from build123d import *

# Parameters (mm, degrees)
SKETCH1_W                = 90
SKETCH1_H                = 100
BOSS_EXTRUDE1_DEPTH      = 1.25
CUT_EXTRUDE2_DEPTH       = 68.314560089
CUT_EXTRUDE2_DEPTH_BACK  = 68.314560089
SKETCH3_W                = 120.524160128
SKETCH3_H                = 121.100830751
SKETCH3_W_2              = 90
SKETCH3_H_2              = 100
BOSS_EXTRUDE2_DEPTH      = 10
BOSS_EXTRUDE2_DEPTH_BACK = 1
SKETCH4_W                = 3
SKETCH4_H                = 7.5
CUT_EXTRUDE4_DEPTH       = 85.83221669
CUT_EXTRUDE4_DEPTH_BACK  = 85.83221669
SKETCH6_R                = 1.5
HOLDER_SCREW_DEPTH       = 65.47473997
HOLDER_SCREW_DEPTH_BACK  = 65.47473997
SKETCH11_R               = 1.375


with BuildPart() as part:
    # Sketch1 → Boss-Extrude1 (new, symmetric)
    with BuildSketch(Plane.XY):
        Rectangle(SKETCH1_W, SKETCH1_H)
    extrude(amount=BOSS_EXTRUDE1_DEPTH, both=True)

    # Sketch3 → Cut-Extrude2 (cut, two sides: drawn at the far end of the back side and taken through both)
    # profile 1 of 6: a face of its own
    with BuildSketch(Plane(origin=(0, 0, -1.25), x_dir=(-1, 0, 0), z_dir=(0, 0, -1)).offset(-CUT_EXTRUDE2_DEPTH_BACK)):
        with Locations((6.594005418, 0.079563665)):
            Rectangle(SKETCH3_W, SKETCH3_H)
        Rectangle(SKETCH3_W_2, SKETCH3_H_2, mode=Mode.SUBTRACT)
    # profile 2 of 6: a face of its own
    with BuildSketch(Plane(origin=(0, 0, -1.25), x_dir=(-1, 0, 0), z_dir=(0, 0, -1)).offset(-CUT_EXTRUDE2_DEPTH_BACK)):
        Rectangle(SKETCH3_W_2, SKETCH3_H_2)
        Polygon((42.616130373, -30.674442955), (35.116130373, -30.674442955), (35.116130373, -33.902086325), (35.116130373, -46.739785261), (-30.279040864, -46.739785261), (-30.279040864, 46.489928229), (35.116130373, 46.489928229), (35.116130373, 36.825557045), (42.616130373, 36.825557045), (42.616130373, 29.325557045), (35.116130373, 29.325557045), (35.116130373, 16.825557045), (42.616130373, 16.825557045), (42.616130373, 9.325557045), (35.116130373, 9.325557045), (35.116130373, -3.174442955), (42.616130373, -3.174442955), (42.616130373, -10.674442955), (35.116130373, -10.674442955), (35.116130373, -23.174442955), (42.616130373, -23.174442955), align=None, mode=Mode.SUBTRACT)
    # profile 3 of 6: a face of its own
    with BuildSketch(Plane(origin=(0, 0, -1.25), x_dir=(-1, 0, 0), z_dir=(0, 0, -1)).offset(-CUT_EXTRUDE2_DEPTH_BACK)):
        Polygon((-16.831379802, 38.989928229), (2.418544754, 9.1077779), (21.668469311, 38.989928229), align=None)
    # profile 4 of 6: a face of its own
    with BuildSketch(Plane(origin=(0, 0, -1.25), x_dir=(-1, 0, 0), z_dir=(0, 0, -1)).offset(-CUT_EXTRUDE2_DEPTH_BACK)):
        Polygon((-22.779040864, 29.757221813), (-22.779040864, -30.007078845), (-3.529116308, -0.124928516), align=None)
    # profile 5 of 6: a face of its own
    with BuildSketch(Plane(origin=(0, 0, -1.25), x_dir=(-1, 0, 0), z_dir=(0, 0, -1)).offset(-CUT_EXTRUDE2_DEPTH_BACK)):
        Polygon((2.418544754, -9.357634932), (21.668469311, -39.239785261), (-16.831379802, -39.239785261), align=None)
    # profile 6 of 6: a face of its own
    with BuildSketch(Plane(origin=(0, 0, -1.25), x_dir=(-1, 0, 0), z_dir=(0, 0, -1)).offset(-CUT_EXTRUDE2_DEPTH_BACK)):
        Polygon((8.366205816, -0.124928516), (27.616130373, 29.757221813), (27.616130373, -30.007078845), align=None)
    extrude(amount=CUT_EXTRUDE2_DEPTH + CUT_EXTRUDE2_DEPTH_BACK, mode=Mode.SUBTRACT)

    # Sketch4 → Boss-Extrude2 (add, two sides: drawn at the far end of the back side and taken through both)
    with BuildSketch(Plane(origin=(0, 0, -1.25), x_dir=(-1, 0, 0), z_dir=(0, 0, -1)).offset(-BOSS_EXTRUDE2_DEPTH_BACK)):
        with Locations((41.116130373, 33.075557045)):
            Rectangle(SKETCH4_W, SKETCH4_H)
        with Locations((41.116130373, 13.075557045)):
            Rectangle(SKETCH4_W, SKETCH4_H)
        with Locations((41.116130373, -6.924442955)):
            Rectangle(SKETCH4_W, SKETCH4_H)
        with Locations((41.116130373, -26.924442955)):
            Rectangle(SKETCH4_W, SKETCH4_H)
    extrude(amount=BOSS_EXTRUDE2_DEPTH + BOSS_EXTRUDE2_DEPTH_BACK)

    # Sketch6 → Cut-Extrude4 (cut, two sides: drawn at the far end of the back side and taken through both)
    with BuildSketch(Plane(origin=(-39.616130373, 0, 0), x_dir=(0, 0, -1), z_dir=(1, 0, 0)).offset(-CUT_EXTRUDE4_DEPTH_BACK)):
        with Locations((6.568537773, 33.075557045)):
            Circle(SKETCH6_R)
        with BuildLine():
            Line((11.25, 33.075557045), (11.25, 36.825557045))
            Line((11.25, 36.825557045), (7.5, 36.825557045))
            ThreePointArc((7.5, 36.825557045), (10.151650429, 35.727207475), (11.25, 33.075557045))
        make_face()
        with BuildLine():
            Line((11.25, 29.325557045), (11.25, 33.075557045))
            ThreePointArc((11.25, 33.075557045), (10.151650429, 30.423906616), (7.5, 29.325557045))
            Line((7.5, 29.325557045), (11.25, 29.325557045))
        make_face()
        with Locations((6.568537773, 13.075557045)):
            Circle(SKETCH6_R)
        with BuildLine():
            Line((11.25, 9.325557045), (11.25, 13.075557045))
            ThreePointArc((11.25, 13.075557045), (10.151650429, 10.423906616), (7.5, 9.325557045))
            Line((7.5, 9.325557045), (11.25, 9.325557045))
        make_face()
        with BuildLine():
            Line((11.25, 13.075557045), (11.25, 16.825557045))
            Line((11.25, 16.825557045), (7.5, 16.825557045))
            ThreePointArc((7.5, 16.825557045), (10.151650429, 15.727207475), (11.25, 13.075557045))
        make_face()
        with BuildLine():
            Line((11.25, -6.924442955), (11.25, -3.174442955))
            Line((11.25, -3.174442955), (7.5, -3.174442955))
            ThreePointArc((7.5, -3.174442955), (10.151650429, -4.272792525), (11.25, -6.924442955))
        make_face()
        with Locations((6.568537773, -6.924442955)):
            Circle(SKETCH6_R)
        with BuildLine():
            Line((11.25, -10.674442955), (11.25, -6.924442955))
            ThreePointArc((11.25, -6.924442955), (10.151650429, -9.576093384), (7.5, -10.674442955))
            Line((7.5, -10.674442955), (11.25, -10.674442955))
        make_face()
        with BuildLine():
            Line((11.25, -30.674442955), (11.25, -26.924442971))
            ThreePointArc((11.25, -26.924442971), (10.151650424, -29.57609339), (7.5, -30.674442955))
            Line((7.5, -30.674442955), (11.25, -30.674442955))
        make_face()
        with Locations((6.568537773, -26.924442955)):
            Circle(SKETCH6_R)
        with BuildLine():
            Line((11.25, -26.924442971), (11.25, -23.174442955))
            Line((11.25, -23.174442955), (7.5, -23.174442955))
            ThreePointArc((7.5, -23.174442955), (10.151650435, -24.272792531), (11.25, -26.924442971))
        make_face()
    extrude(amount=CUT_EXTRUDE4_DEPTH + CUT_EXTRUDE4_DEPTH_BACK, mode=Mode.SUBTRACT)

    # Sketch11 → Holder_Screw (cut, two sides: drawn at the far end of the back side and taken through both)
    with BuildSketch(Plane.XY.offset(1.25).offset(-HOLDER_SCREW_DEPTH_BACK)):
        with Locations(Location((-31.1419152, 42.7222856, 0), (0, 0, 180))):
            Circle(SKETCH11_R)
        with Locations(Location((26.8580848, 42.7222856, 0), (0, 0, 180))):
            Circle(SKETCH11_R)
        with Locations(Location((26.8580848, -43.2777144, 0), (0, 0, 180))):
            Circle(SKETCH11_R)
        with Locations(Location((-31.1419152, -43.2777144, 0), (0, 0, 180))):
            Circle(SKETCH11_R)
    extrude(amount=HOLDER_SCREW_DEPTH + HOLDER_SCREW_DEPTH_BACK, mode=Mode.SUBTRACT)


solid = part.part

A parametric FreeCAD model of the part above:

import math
import FreeCAD as App
import Part
import Sketcher


def add_polygon(sketch, points):
    """Adds a closed chain of lines whose ends are joined by coincident constraints."""
    first, n = sketch.GeometryCount, len(points)
    for a, b in zip(points, points[1:] + points[:1]):
        sketch.addGeometry(Part.LineSegment(App.Vector(*a, 0), App.Vector(*b, 0)), False)
    for i in range(n):
        sketch.addConstraint(Sketcher.Constraint("Coincident", first + i, 2, first + (i + 1) % n, 1))

doc = App.newDocument("Part")
body = doc.addObject("PartDesign::Body", "Body")

# Sketch on XY plane
sketch1 = body.newObject("Sketcher::SketchObject", "Sketch")
sketch1.AttachmentSupport = (doc.getObject("XY_Plane"), [""])
sketch1.MapMode = "FlatFace"
add_polygon(sketch1, [(-45, 50), (-45, -50), (45, -50), (45, 50)])  # lines 0-3
sketch1.addConstraint([
    Sketcher.Constraint("Vertical", 0),
    Sketcher.Constraint("Horizontal", 1),
    Sketcher.Constraint("Vertical", 2),
    Sketcher.Constraint("Horizontal", 3),
    Sketcher.Constraint("Symmetric", 0, 2, 2, 2, -1, 1),
    Sketcher.Constraint("DistanceX", 1, 1, 1, 2, 90.0),
    Sketcher.Constraint("DistanceY", 0, 2, 0, 1, 100.0),
])
pad1 = body.newObject("PartDesign::Pad", "Pad")
pad1.Profile = sketch1
pad1.Length = 2.5
pad1.Midplane = True

# Sketch on XY plane
sketch2 = body.newObject("Sketcher::SketchObject", "Sketch001")
sketch2.AttachmentSupport = (doc.getObject("XY_Plane"), [""])
sketch2.MapMode = "FlatFace"
sketch2.AttachmentOffset = App.Placement(App.Vector(0, 0, -1.25), App.Rotation())
add_polygon(sketch2, [(53.668075, 60.629979), (53.668075, -60.470852), (-66.856085, -60.470852), (-66.856085, 60.629979)])  # lines 0-3
add_polygon(sketch2, [(-42.61613, -3.174443), (-42.61613, -10.674443), (-35.11613, -10.674443), (-35.11613, -23.174443), (-42.61613, -23.174443), (-42.61613, -30.674443), (-35.11613, -30.674443), (-35.11613, -46.739785), (30.279041, -46.739785), (30.279041, 46.489928), (-35.11613, 46.489928), (-35.11613, 36.825557), (-42.61613, 36.825557), (-42.61613, 29.325557), (-35.11613, 29.325557), (-35.11613, 16.825557), (-42.61613, 16.825557), (-42.61613, 9.325557), (-35.11613, 9.325557), (-35.11613, -3.174443)])  # lines 4-23
add_polygon(sketch2, [(16.83138, 38.989928), (-2.418545, 9.107778), (-21.668469, 38.989928)])  # lines 24-26
add_polygon(sketch2, [(22.779041, 29.757222), (22.779041, -30.007079), (3.529116, -0.124929)])  # lines 27-29
add_polygon(sketch2, [(-21.668469, -39.239785), (-2.418545, -9.357635), (16.83138, -39.239785)])  # lines 30-32
add_polygon(sketch2, [(-27.61613, 29.757222), (-8.366206, -0.124929), (-27.61613, -30.007079)])  # lines 33-35
sketch2.addConstraint([
    Sketcher.Constraint("Vertical", 0),
    Sketcher.Constraint("Horizontal", 1),
    Sketcher.Constraint("Vertical", 2),
    Sketcher.Constraint("Horizontal", 3),
    Sketcher.Constraint("Vertical", 4),
    Sketcher.Constraint("Horizontal", 5),
    Sketcher.Constraint("Vertical", 6),
    Sketcher.Constraint("Horizontal", 7),
    Sketcher.Constraint("Vertical", 8),
    Sketcher.Constraint("Horizontal", 9),
    Sketcher.Constraint("Vertical", 10),
    Sketcher.Constraint("Horizontal", 11),
    Sketcher.Constraint("Vertical", 12),
    Sketcher.Constraint("Horizontal", 13),
    Sketcher.Constraint("Vertical", 14),
    Sketcher.Constraint("Horizontal", 15),
    Sketcher.Constraint("Vertical", 16),
    Sketcher.Constraint("Horizontal", 17),
    Sketcher.Constraint("Vertical", 18),
    Sketcher.Constraint("Horizontal", 19),
    Sketcher.Constraint("Vertical", 20),
    Sketcher.Constraint("Horizontal", 21),
    Sketcher.Constraint("Vertical", 22),
    Sketcher.Constraint("Horizontal", 23),
    Sketcher.Constraint("Horizontal", 26),
    Sketcher.Constraint("Vertical", 27),
    Sketcher.Constraint("Horizontal", 32),
    Sketcher.Constraint("Vertical", 35),
    Sketcher.Constraint("Parallel", 25, 28),
    Sketcher.Constraint("Parallel", 24, 29),
    Sketcher.Constraint("Parallel", 29, 30),
    Sketcher.Constraint("Parallel", 28, 31),
    Sketcher.Constraint("Parallel", 31, 33),
    Sketcher.Constraint("Parallel", 30, 34),
    Sketcher.Constraint("Horizontal", 28, 2, 33, 2),
    Sketcher.Constraint("Horizontal", 27, 2, 34, 2),
    Sketcher.Constraint("Horizontal", 29, 2, 35, 2),
    Sketcher.Constraint("Vertical", 4, 2, 7, 2),
    Sketcher.Constraint("Vertical", 6, 2, 9, 2),
    Sketcher.Constraint("Vertical", 10, 2, 13, 2),
    Sketcher.Constraint("Vertical", 8, 2, 15, 2),
    Sketcher.Constraint("Vertical", 14, 2, 17, 2),
    Sketcher.Constraint("Vertical", 16, 2, 19, 2),
    Sketcher.Constraint("Vertical", 18, 2, 21, 2),
    Sketcher.Constraint("Vertical", 24, 2, 30, 2),
    Sketcher.Constraint("Vertical", 26, 2, 31, 2),
    Sketcher.Constraint("Equal", 23, 4),
    Sketcher.Constraint("Equal", 4, 8),
    Sketcher.Constraint("Equal", 8, 16),
    Sketcher.Constraint("Equal", 6, 18),
    Sketcher.Constraint("Equal", 16, 20),
    Sketcher.Constraint("Equal", 18, 22),
    Sketcher.Constraint("Equal", 25, 28),
    Sketcher.Constraint("DistanceX", 5, 1, 5, 2, 7.5),
    Sketcher.Constraint("DistanceY", 6, 2, 6, 1, 12.5),
    Sketcher.Constraint("DistanceX", 8, 2, 34, 2, 15.0),
    Sketcher.Constraint("DistanceY", 25, 2, 13, 2, 7.5),
    Sketcher.Constraint("DistanceX", 27, 2, 11, 2, 7.5),
    Sketcher.Constraint("DistanceY", 11, 2, 31, 2, 7.5),
    Sketcher.Constraint("DistanceY", 27, 2, 27, 1, 59.764301),
    Sketcher.Constraint("DistanceX", 1, 2, 1, 1, 120.52416),
    Sketcher.Constraint("DistanceX", 11, 1, 11, 2, 65.395171),
    Sketcher.Constraint("DistanceX", 26, 1, 26, 2, 38.499849),
    Sketcher.Constraint("DistanceY", 0, 2, 0, 1, 121.100831),
    Sketcher.Constraint("DistanceY", 14, 2, 14, 1, 9.664371),
    Sketcher.Constraint("DistanceY", 10, 2, 10, 1, 16.065342),
    Sketcher.Constraint("DistanceY", 0, 2, -1, 1, 60.470852),
    Sketcher.Constraint("DistanceX", 4, 2, -1, 1, 42.61613),
    Sketcher.Constraint("DistanceY", -1, 1, 12, 2, 46.489928),
    Sketcher.Constraint("DistanceX", 25, 2, -1, 1, 21.668469),
    Sketcher.Constraint("DistanceY", 27, 2, -1, 1, 30.007079),
    Sketcher.Constraint("DistanceX", -1, 1, 0, 2, 53.668075),
])
pocket1 = body.newObject("PartDesign::Pocket", "Pocket")
pocket1.Profile = sketch2
pocket1.Type = "ThroughAll"
pocket1.Midplane = True

# Sketch on XY plane
sketch3 = body.newObject("Sketcher::SketchObject", "Sketch002")
sketch3.AttachmentSupport = (doc.getObject("XY_Plane"), [""])
sketch3.MapMode = "FlatFace"
sketch3.AttachmentOffset = App.Placement(App.Vector(0, 0, -1.25), App.Rotation())
add_polygon(sketch3, [(-39.61613, 36.825557), (-39.61613, 29.325557), (-42.61613, 29.325557), (-42.61613, 36.825557)])  # lines 0-3
add_polygon(sketch3, [(-39.61613, 16.825557), (-39.61613, 9.325557), (-42.61613, 9.325557), (-42.61613, 16.825557)])  # lines 4-7
add_polygon(sketch3, [(-39.61613, -3.174443), (-39.61613, -10.674443), (-42.61613, -10.674443), (-42.61613, -3.174443)])  # lines 8-11
add_polygon(sketch3, [(-39.61613, -23.174443), (-39.61613, -30.674443), (-42.61613, -30.674443), (-42.61613, -23.174443)])  # lines 12-15
sketch3.addConstraint([
    Sketcher.Constraint("Vertical", 0),
    Sketcher.Constraint("Horizontal", 1),
    Sketcher.Constraint("Vertical", 2),
    Sketcher.Constraint("Horizontal", 3),
    Sketcher.Constraint("Vertical", 4),
    Sketcher.Constraint("Horizontal", 5),
    Sketcher.Constraint("Vertical", 6),
    Sketcher.Constraint("Horizontal", 7),
    Sketcher.Constraint("Vertical", 8),
    Sketcher.Constraint("Horizontal", 9),
    Sketcher.Constraint("Vertical", 10),
    Sketcher.Constraint("Horizontal", 11),
    Sketcher.Constraint("Vertical", 12),
    Sketcher.Constraint("Horizontal", 13),
    Sketcher.Constraint("Vertical", 14),
    Sketcher.Constraint("Horizontal", 15),
    Sketcher.Constraint("Vertical", 3, 2, 4, 2),
    Sketcher.Constraint("Vertical", 2, 2, 5, 2),
    Sketcher.Constraint("Vertical", 7, 2, 8, 2),
    Sketcher.Constraint("Vertical", 6, 2, 9, 2),
    Sketcher.Constraint("Vertical", 11, 2, 12, 2),
    Sketcher.Constraint("Vertical", 10, 2, 13, 2),
    Sketcher.Constraint("Equal", 2, 4),
    Sketcher.Constraint("Equal", 6, 8),
    Sketcher.Constraint("Equal", 10, 12),
    Sketcher.Constraint("DistanceX", 1, 2, 1, 1, 3.0),
    Sketcher.Constraint("DistanceY", 0, 2, 0, 1, 7.5),
    Sketcher.Constraint("DistanceY", 4, 2, 0, 2, 20.0),
    Sketcher.Constraint("DistanceY", 8, 2, 4, 2, 20.0),
    Sketcher.Constraint("DistanceY", 12, 2, 8, 2, 20.0),
    Sketcher.Constraint("DistanceX", 0, 2, -1, 1, 39.61613),
    Sketcher.Constraint("DistanceY", -1, 1, 0, 2, 29.325557),
])
pad2 = body.newObject("PartDesign::Pad", "Pad001")
pad2.Profile = sketch3
pad2.Type = "TwoLengths"
pad2.Length = 10
pad2.Length2 = 1
pad2.Reversed = True

# Sketch on YZ plane
sketch4 = body.newObject("Sketcher::SketchObject", "Sketch003")
sketch4.AttachmentSupport = (doc.getObject("YZ_Plane"), [""])
sketch4.MapMode = "FlatFace"
sketch4.AttachmentOffset = App.Placement(App.Vector(0, 0, -39.61613), App.Rotation())
sketch4.addGeometry([
    Part.Circle(App.Vector(33.075557, -6.568538, 0), App.Vector(0, 0, 1), 1.5),  # 0
    Part.LineSegment(App.Vector(33.075557, -11.25, 0), App.Vector(36.825557, -11.25, 0)),  # 1
    Part.LineSegment(App.Vector(36.825557, -11.25, 0), App.Vector(36.825557, -7.5, 0)),  # 2
    Part.ArcOfCircle(Part.Circle(App.Vector(33.075557, -7.5, 0), App.Vector(0, 0, 1), 3.75), math.radians(-90), math.radians(0)),  # 3
    Part.LineSegment(App.Vector(29.325557, -11.25, 0), App.Vector(33.075557, -11.25, 0)),  # 4
    Part.ArcOfCircle(Part.Circle(App.Vector(33.075557, -7.5, 0), App.Vector(0, 0, 1), 3.75), math.radians(-180), math.radians(-90)),  # 5
    Part.LineSegment(App.Vector(29.325557, -7.5, 0), App.Vector(29.325557, -11.25, 0)),  # 6
    Part.Circle(App.Vector(13.075557, -6.568538, 0), App.Vector(0, 0, 1), 1.5),  # 7
    Part.LineSegment(App.Vector(9.325557, -11.25, 0), App.Vector(13.075557, -11.25, 0)),  # 8
    Part.ArcOfCircle(Part.Circle(App.Vector(13.075557, -7.5, 0), App.Vector(0, 0, 1), 3.75), math.radians(-180), math.radians(-90)),  # 9
    Part.LineSegment(App.Vector(9.325557, -7.5, 0), App.Vector(9.325557, -11.25, 0)),  # 10
    Part.LineSegment(App.Vector(13.075557, -11.25, 0), App.Vector(16.825557, -11.25, 0)),  # 11
    Part.LineSegment(App.Vector(16.825557, -11.25, 0), App.Vector(16.825557, -7.5, 0)),  # 12
    Part.ArcOfCircle(Part.Circle(App.Vector(13.075557, -7.5, 0), App.Vector(0, 0, 1), 3.75), math.radians(-90), math.radians(0)),  # 13
    Part.LineSegment(App.Vector(-6.924443, -11.25, 0), App.Vector(-3.174443, -11.25, 0)),  # 14
    Part.LineSegment(App.Vector(-3.174443, -11.25, 0), App.Vector(-3.174443, -7.5, 0)),  # 15
    Part.ArcOfCircle(Part.Circle(App.Vector(-6.924443, -7.5, 0), App.Vector(0, 0, 1), 3.75), math.radians(-90), math.radians(0)),  # 16
    Part.Circle(App.Vector(-6.924443, -6.568538, 0), App.Vector(0, 0, 1), 1.5),  # 17
    Part.LineSegment(App.Vector(-10.674443, -11.25, 0), App.Vector(-6.924443, -11.25, 0)),  # 18
    Part.ArcOfCircle(Part.Circle(App.Vector(-6.924443, -7.5, 0), App.Vector(0, 0, 1), 3.75), math.radians(-180), math.radians(-90)),  # 19
    Part.LineSegment(App.Vector(-10.674443, -7.5, 0), App.Vector(-10.674443, -11.25, 0)),  # 20
    Part.LineSegment(App.Vector(-30.674443, -11.25, 0), App.Vector(-26.924443, -11.25, 0)),  # 21
    Part.ArcOfCircle(Part.Circle(App.Vector(-26.924443, -7.5, 0), App.Vector(0, 0, 1), 3.75), math.radians(180), math.radians(270)),  # 22
    Part.LineSegment(App.Vector(-30.674443, -7.5, 0), App.Vector(-30.674443, -11.25, 0)),  # 23
    Part.Circle(App.Vector(-26.924443, -6.568538, 0), App.Vector(0, 0, 1), 1.5),  # 24
    Part.LineSegment(App.Vector(-26.924443, -11.25, 0), App.Vector(-23.174443, -11.25, 0)),  # 25
    Part.LineSegment(App.Vector(-23.174443, -11.25, 0), App.Vector(-23.174443, -7.5, 0)),  # 26
    Part.ArcOfCircle(Part.Circle(App.Vector(-26.924443, -7.5, 0), App.Vector(0, 0, 1), 3.75), math.radians(-90), math.radians(0)),  # 27
], False)
sketch4.addConstraint([
    Sketcher.Constraint("Coincident", 1, 2, 2, 1),
    Sketcher.Constraint("Tangent", 2, 2, 3, 2),
    Sketcher.Constraint("Tangent", 3, 1, 1, 1),
    Sketcher.Constraint("Tangent", 4, 2, 5, 2),
    Sketcher.Constraint("Tangent", 5, 1, 6, 1),
    Sketcher.Constraint("Coincident", 6, 2, 4, 1),
    Sketcher.Constraint("Tangent", 8, 2, 9, 2),
    Sketcher.Constraint("Tangent", 9, 1, 10, 1),
    Sketcher.Constraint("Coincident", 10, 2, 8, 1),
    Sketcher.Constraint("Coincident", 11, 2, 12, 1),
    Sketcher.Constraint("Tangent", 12, 2, 13, 2),
    Sketcher.Constraint("Tangent", 13, 1, 11, 1),
    Sketcher.Constraint("Coincident", 14, 2, 15, 1),
    Sketcher.Constraint("Tangent", 15, 2, 16, 2),
    Sketcher.Constraint("Tangent", 16, 1, 14, 1),
    Sketcher.Constraint("Tangent", 18, 2, 19, 2),
    Sketcher.Constraint("Tangent", 19, 1, 20, 1),
    Sketcher.Constraint("Coincident", 20, 2, 18, 1),
    Sketcher.Constraint("Tangent", 21, 2, 22, 2),
    Sketcher.Constraint("Tangent", 22, 1, 23, 1),
    Sketcher.Constraint("Coincident", 23, 2, 21, 1),
    Sketcher.Constraint("Coincident", 25, 2, 26, 1),
    Sketcher.Constraint("Tangent", 26, 2, 27, 2),
    Sketcher.Constraint("Tangent", 27, 1, 25, 1),
    Sketcher.Constraint("Horizontal", 1),
    Sketcher.Constraint("Vertical", 2),
    Sketcher.Constraint("Horizontal", 4),
    Sketcher.Constraint("Vertical", 6),
    Sketcher.Constraint("Horizontal", 8),
    Sketcher.Constraint("Vertical", 10),
    Sketcher.Constraint("Horizontal", 11),
    Sketcher.Constraint("Vertical", 12),
    Sketcher.Constraint("Horizontal", 14),
    Sketcher.Constraint("Vertical", 15),
    Sketcher.Constraint("Horizontal", 18),
    Sketcher.Constraint("Vertical", 20),
    Sketcher.Constraint("Horizontal", 21),
    Sketcher.Constraint("Vertical", 23),
    Sketcher.Constraint("Horizontal", 25),
    Sketcher.Constraint("Vertical", 26),
    Sketcher.Constraint("Coincident", 5, 3, 3, 3),
    Sketcher.Constraint("Coincident", 13, 3, 9, 3),
    Sketcher.Constraint("Coincident", 19, 3, 16, 3),
    Sketcher.Constraint("Coincident", 27, 3, 22, 3),
    Sketcher.Constraint("Equal", 3, 5),
    Sketcher.Constraint("Equal", 0, 7),
    Sketcher.Constraint("Equal", 5, 9),
    Sketcher.Constraint("Equal", 9, 13),
    Sketcher.Constraint("Equal", 13, 16),
    Sketcher.Constraint("Equal", 7, 17),
    Sketcher.Constraint("Equal", 16, 19),
    Sketcher.Constraint("Equal", 19, 22),
    Sketcher.Constraint("Equal", 17, 24),
    Sketcher.Constraint("Equal", 22, 27),
    Sketcher.Constraint("Horizontal", 0, 3, 7, 3),
    Sketcher.Constraint("Horizontal", 5, 3, 9, 3),
    Sketcher.Constraint("Horizontal", 13, 3, 16, 3),
    Sketcher.Constraint("Horizontal", 7, 3, 17, 3),
    Sketcher.Constraint("Horizontal", 19, 3, 22, 3),
    Sketcher.Constraint("Horizontal", 17, 3, 24, 3),
    Sketcher.Constraint("Vertical", 0, 3, 3, 3),
    Sketcher.Constraint("Vertical", 7, 3, 9, 3),
    Sketcher.Constraint("Vertical", 16, 3, 17, 3),
    Sketcher.Constraint("Vertical", 22, 3, 24, 3),
    Sketcher.Constraint("Diameter", 0, 3.0),
    Sketcher.Constraint("Radius", 3, 3.75),
    Sketcher.Constraint("DistanceX", 7, 3, 0, 3, 20.0),
    Sketcher.Constraint("DistanceX", 16, 3, 13, 3, 20.0),
    Sketcher.Constraint("DistanceX", 22, 3, 16, 3, 20.0),
    Sketcher.Constraint("DistanceY", 3, 3, -1, 1, 7.5),
    Sketcher.Constraint("DistanceX", -1, 1, 0, 3, 33.075557),
    Sketcher.Constraint("DistanceY", 0, 3, -1, 1, 6.568538),
])
pocket2 = body.newObject("PartDesign::Pocket", "Pocket001")
pocket2.Profile = sketch4
pocket2.Type = "ThroughAll"
pocket2.Midplane = True

# Sketch on XY plane
sketch5 = body.newObject("Sketcher::SketchObject", "Sketch004")
sketch5.AttachmentSupport = (doc.getObject("XY_Plane"), [""])
sketch5.MapMode = "FlatFace"
sketch5.AttachmentOffset = App.Placement(App.Vector(0, 0, 1.25), App.Rotation())
sketch5.addGeometry([
    Part.Circle(App.Vector(-31.141915, 42.722286, 0), App.Vector(0, 0, 1), 1.375),
    Part.Circle(App.Vector(26.858085, 42.722286, 0), App.Vector(0, 0, 1), 1.375),
    Part.Circle(App.Vector(26.858085, -43.277714, 0), App.Vector(0, 0, 1), 1.375),
    Part.Circle(App.Vector(-31.141915, -43.277714, 0), App.Vector(0, 0, 1), 1.375),
], False)
sketch5.addConstraint([
    Sketcher.Constraint("Equal", 0, 1),
    Sketcher.Constraint("Equal", 1, 2),
    Sketcher.Constraint("Equal", 2, 3),
    Sketcher.Constraint("Horizontal", 0, 3, 1, 3),
    Sketcher.Constraint("Horizontal", 2, 3, 3, 3),
    Sketcher.Constraint("Vertical", 1, 3, 2, 3),
    Sketcher.Constraint("Vertical", 0, 3, 3, 3),
    Sketcher.Constraint("Diameter", 0, 2.75),
    Sketcher.Constraint("DistanceX", 0, 3, 1, 3, 58.0),
    Sketcher.Constraint("DistanceY", 2, 3, 1, 3, 86.0),
    Sketcher.Constraint("DistanceX", 0, 3, -1, 1, 31.141915),
    Sketcher.Constraint("DistanceY", -1, 1, 0, 3, 42.722286),
])
pocket3 = body.newObject("PartDesign::Pocket", "Pocket002")
pocket3.Profile = sketch5
pocket3.Type = "ThroughAll"
pocket3.Midplane = True

doc.recompute()
